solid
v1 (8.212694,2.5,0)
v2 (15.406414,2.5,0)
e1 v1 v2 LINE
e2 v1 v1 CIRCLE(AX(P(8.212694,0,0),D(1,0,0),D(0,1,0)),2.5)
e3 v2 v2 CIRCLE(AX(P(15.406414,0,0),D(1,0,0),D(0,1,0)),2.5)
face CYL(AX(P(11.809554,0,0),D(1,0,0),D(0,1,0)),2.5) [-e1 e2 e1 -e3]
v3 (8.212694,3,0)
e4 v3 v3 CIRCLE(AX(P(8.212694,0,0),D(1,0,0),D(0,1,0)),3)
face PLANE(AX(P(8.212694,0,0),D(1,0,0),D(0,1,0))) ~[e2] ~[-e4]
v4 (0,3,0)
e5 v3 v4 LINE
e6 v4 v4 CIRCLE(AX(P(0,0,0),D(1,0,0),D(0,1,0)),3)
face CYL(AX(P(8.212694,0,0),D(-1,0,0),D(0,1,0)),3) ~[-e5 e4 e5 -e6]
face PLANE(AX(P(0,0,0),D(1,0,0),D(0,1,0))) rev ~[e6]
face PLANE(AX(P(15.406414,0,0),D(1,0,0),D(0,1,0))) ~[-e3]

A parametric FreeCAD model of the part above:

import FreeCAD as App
import Part
import Sketcher

V = App.Vector
Q = App.Units.Quantity

doc = App.newDocument("Part")
body = doc.addObject("PartDesign::Body", "Body")

sketch1 = doc.addObject("Sketcher::SketchObject", "Sketch")
body.addObject(sketch1)
sketch1.AttachmentSupport = (doc.XY_Plane, [""])
sketch1.MapMode = "FlatFace"
sketch1.addGeometry([
    Part.LineSegment(V(0, 3, 0), V(0, 0, 0)),
    Part.LineSegment(V(0, 0, 0), V(15.4, 0, 0)),
    Part.LineSegment(V(15.4, 0, 0), V(15.4, 2.5, 0)),
    Part.LineSegment(V(15.4, 2.5, 0), V(8.2, 2.5, 0)),
    Part.LineSegment(V(8.2, 2.5, 0), V(8.2, 3, 0)),
    Part.LineSegment(V(8.2, 3, 0), V(0, 3, 0)),
], False)
sketch1.addConstraint([
    Sketcher.Constraint("Coincident", 0, 2, 1, 1),
    Sketcher.Constraint("Coincident", 1, 2, 2, 1),
    Sketcher.Constraint("Coincident", 2, 2, 3, 1),
    Sketcher.Constraint("Coincident", 3, 2, 4, 1),
    Sketcher.Constraint("Coincident", 4, 2, 5, 1),
    Sketcher.Constraint("Coincident", 5, 2, 0, 1),
    Sketcher.Constraint("Vertical", 0),
    Sketcher.Constraint("Horizontal", 1),
    Sketcher.Constraint("Vertical", 2),
    Sketcher.Constraint("Horizontal", 3),
    Sketcher.Constraint("Vertical", 4),
    Sketcher.Constraint("Horizontal", 5),
    Sketcher.Constraint("Coincident", 0, 2, -1, 1),
    Sketcher.Constraint("DistanceY", 0, 2, 0, 1, Q("3 mm")),
    Sketcher.Constraint("DistanceY", 2, 1, 2, 2, Q("2.5 mm")),
    Sketcher.Constraint("DistanceX", 3, 2, 3, 1, Q("7.19372 mm")),
    Sketcher.Constraint("DistanceX", 1, 1, 1, 2, Q("15.406414 mm")),
])
revolution = doc.addObject("PartDesign::Revolution", "Revolution")
body.addObject(revolution)
revolution.Profile = sketch1
revolution.ReferenceAxis = (sketch1, ["H_Axis"])
revolution.Angle = 360

doc.recompute()
